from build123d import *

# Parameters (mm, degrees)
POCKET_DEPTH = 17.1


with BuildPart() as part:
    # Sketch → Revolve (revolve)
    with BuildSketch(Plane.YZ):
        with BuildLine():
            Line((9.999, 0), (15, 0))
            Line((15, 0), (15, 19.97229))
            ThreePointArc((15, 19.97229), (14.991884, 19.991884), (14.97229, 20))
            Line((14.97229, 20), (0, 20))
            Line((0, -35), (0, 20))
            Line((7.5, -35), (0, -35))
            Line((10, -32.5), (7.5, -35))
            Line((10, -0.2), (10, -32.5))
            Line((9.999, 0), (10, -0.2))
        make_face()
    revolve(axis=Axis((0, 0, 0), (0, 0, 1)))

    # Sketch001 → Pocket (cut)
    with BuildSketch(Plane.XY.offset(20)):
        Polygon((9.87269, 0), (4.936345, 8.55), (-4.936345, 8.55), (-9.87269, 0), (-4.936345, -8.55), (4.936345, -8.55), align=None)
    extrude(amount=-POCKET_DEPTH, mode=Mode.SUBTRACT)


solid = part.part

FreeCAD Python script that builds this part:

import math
import FreeCAD as App
import Part
import Sketcher

V = App.Vector
Q = App.Units.Quantity


def add_polygon(sketch, points):
    """Adds a closed chain of lines whose ends are joined by coincident constraints."""
    first, n = sketch.GeometryCount, len(points)
    for a, b in zip(points, points[1:] + points[:1]):
        sketch.addGeometry(Part.LineSegment(App.Vector(*a, 0), App.Vector(*b, 0)), False)
    for i in range(n):
        sketch.addConstraint(Sketcher.Constraint("Coincident", first + i, 2, first + (i + 1) % n, 1))

doc = App.newDocument("Part")
body = doc.addObject("PartDesign::Body", "Body")

sketch1 = body.newObject("Sketcher::SketchObject", "Sketch")
sketch1.AttachmentSupport = (doc.getObject("YZ_Plane"), [""])
sketch1.MapMode = "FlatFace"
sketch1.addGeometry([
    Part.LineSegment(V(9.999, 0, 0), V(15, 0, 0)),
    Part.LineSegment(V(15, 0, 0), V(15, 19.972, 0)),
    Part.ArcOfCircle(Part.Circle(V(14.972, 19.972, 0), V(0, 0, 1), 0.028), math.radians(0), math.radians(90)),
    Part.LineSegment(V(14.972, 20, 0), V(0, 20, 0)),
    Part.LineSegment(V(0, 20, 0), V(0, -35, 0)),
    Part.LineSegment(V(0, -35, 0), V(7.5, -35, 0)),
    Part.LineSegment(V(7.5, -35, 0), V(10, -32.5, 0)),
    Part.LineSegment(V(10, -32.5, 0), V(10, -0.2, 0)),
    Part.LineSegment(V(10, -0.2, 0), V(9.999, 0, 0)),
], False)
sketch1.addConstraint([
    Sketcher.Constraint("Coincident", 0, 2, 1, 1),
    Sketcher.Constraint("Coincident", 1, 2, 2, 1),
    Sketcher.Constraint("Coincident", 2, 2, 3, 1),
    Sketcher.Constraint("Coincident", 3, 2, 4, 1),
    Sketcher.Constraint("Coincident", 4, 2, 5, 1),
    Sketcher.Constraint("Coincident", 5, 2, 6, 1),
    Sketcher.Constraint("Coincident", 6, 2, 7, 1),
    Sketcher.Constraint("Coincident", 7, 2, 8, 1),
    Sketcher.Constraint("Coincident", 8, 2, 0, 1),
    Sketcher.Constraint("Horizontal", 0),
    Sketcher.Constraint("Vertical", 1),
    Sketcher.Constraint("Horizontal", 3),
    Sketcher.Constraint("Vertical", 4),
    Sketcher.Constraint("Horizontal", 5),
    Sketcher.Constraint("Vertical", 7),
    Sketcher.Constraint("PointOnObject", 0, 2, -1),
    Sketcher.Constraint("PointOnObject", 3, 2, -2),
    Sketcher.Constraint("Horizontal", 2, 3, 1, 2),
    Sketcher.Constraint("DistanceY", 4, 2, 4, 1, Q("55 mm")),
    Sketcher.Constraint("Angle", 6, Q("45 deg")),
    Sketcher.Constraint("DistanceX", 5, 1, 5, 2, Q("7.5 mm")),
    Sketcher.Constraint("DistanceY", 7, 1, 7, 2, Q("32.3 mm")),
    Sketcher.Constraint("DistanceX", -1, 1, 0, 2, Q("15 mm")),
    Sketcher.Constraint("DistanceY", -1, 1, 2, 2, Q("20 mm")),
    Sketcher.Constraint("DistanceX", -1, 1, 6, 2, Q("10 mm")),
    Sketcher.Constraint("DistanceX", 0, 1, 0, 2, Q("5.001 mm")),
    Sketcher.Constraint("Radius", 2, Q("0.02771 mm")),
    Sketcher.Constraint("DistanceX", 3, 2, 3, 1, Q("14.97229 mm")),
])
revolution = body.newObject("PartDesign::Revolution", "Revolution")
revolution.Profile = sketch1
revolution.ReferenceAxis = (sketch1, ["V_Axis"])
revolution.Angle = 360

sketch2 = body.newObject("Sketcher::SketchObject", "Sketch001")
sketch2.AttachmentSupport = (doc.getObject("XY_Plane"), [""])
sketch2.MapMode = "FlatFace"
sketch2.AttachmentOffset = App.Placement(V(0, 0, 20), App.Rotation())
add_polygon(sketch2, [(10, 0), (5, 9), (-5, 9), (-10, 0), (-5, -9), (5, -9)])
sketch2.addConstraint([
    Sketcher.Constraint("Horizontal", 1),
    Sketcher.Constraint("Horizontal", 4),
    Sketcher.Constraint("Symmetric", 0, 2, 3, 2, -1, 1),
    Sketcher.Constraint("Symmetric", 2, 2, 5, 2, -1, 1),
    Sketcher.Constraint("PointOnObject", 2, 2, -1),
    Sketcher.Constraint("Parallel", 2, 5),
    Sketcher.Constraint("Vertical", 1, 2, 3, 2),
    Sketcher.Constraint("Angle", 0, Q("120.000001 deg")),
    Sketcher.Constraint("DistanceY", 3, 2, 1, 2, Q("17.1 mm")),
    Sketcher.Constraint("DistanceX", 1, 2, 1, 1, Q("9.87269 mm")),
])
pocket1 = body.newObject("PartDesign::Pocket", "Pocket")
pocket1.Profile = sketch2
pocket1.Length = 17.1

doc.recompute()
